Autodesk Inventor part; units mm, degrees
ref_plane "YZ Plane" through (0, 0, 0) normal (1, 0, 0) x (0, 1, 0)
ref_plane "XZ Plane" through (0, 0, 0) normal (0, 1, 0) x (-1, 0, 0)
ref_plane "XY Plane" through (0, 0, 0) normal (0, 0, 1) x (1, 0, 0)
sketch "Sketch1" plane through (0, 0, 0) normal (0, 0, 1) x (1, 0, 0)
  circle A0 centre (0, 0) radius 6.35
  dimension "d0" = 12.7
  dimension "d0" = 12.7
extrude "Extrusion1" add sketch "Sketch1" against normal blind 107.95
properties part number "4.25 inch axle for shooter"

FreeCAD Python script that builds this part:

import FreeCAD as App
import Part
import Sketcher

V = App.Vector
Q = App.Units.Quantity

doc = App.newDocument("Part")
params = doc.addObject("Spreadsheet::Sheet", "Params")
for row, (alias, value) in enumerate([
    ("sketch1_diameter", "0.5 in"),
    ("pad1_length", "4.25 in"),
], start=1):
    params.set(f"A{row}", alias)
    params.set(f"B{row}", "=" + value)
    params.setAlias(f"B{row}", alias)

body = doc.addObject("PartDesign::Body", "Body")

# Sketch on XY plane
sketch1 = doc.addObject("Sketcher::SketchObject", "Sketch")
body.addObject(sketch1)
sketch1.AttachmentSupport = (doc.XY_Plane, [""])
sketch1.MapMode = "FlatFace"
sketch1.addGeometry(Part.Circle(V(0, 0, 0), V(0, 0, 1), 6.35), False)
sketch1.addConstraint([
    Sketcher.Constraint("Coincident", 0, 3, -1, 1),
    Sketcher.Constraint("Diameter", 0, Q("0.5 in")),
])
sketch1.setExpression("Constraints[1]", "Params.sketch1_diameter")
pad1 = doc.addObject("PartDesign::Pad", "Pad")
body.addObject(pad1)
pad1.Profile = sketch1
pad1.setExpression("Length", "Params.pad1_length")
pad1.Reversed = True

doc.recompute()
